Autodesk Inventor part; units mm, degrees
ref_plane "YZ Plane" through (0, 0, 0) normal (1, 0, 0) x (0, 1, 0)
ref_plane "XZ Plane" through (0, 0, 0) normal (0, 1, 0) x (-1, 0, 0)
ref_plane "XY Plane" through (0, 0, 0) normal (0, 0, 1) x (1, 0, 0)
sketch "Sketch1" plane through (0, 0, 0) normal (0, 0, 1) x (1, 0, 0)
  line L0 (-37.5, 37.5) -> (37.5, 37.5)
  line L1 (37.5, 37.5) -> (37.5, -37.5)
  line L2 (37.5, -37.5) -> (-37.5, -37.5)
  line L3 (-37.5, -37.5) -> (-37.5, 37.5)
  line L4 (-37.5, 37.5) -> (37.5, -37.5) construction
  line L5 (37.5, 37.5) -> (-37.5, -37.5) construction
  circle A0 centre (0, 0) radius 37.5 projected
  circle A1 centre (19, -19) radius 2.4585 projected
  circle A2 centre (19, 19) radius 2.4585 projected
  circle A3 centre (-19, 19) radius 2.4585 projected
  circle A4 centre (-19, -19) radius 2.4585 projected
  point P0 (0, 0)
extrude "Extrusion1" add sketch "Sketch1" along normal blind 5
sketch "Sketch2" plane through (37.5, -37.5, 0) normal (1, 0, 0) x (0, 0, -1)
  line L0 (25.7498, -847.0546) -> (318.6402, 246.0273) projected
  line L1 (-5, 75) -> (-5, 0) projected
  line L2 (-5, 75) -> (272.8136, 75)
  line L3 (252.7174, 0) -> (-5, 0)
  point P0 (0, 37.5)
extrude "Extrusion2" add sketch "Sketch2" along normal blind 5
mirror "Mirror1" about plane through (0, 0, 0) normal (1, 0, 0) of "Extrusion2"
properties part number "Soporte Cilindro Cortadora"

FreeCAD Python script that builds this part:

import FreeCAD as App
import Part
import Sketcher

V = App.Vector
Q = App.Units.Quantity

doc = App.newDocument("Part")
body = doc.addObject("PartDesign::Body", "Body")

# Sketch on XY plane
sketch1 = doc.addObject("Sketcher::SketchObject", "Sketch")
body.addObject(sketch1)
sketch1.AttachmentSupport = (doc.XY_Plane, [""])
sketch1.MapMode = "FlatFace"
sketch1.addGeometry([
    Part.LineSegment(V(-37.5, 37.5, 0), V(-37.5, -37.5, 0)),  # 0
    Part.LineSegment(V(-37.5, -37.5, 0), V(37.5, -37.5, 0)),  # 1
    Part.LineSegment(V(37.5, -37.5, 0), V(37.5, 37.5, 0)),  # 2
    Part.LineSegment(V(37.5, 37.5, 0), V(-37.5, 37.5, 0)),  # 3
    Part.Circle(V(19, 19, 0), V(0, 0, 1), 2.5),  # 4
    Part.Circle(V(-19, -19, 0), V(0, 0, 1), 2.5),  # 5
    Part.Circle(V(19, -19, 0), V(0, 0, 1), 2.5),  # 6
    Part.Circle(V(-19, 19, 0), V(0, 0, 1), 2.5),  # 7
], False)
sketch1.addConstraint([
    Sketcher.Constraint("Coincident", 0, 2, 1, 1),
    Sketcher.Constraint("Coincident", 1, 2, 2, 1),
    Sketcher.Constraint("Coincident", 2, 2, 3, 1),
    Sketcher.Constraint("Coincident", 3, 2, 0, 1),
    Sketcher.Constraint("Vertical", 0),
    Sketcher.Constraint("Horizontal", 1),
    Sketcher.Constraint("Vertical", 2),
    Sketcher.Constraint("Horizontal", 3),
    Sketcher.Constraint("Equal", 4, 5),
    Sketcher.Constraint("Equal", 5, 6),
    Sketcher.Constraint("Equal", 6, 7),
    Sketcher.Constraint("Symmetric", 4, 3, 5, 3, -1, 1),
    Sketcher.Constraint("Symmetric", 6, 3, 7, 3, -1, 1),
    Sketcher.Constraint("Symmetric", 0, 2, 2, 2, -1, 1),
    Sketcher.Constraint("Symmetric", 5, 3, 6, 3, -2),
    Sketcher.Constraint("Equal", 3, 0),
    Sketcher.Constraint("DistanceX", 1, 1, 1, 2, 75.0),
    Sketcher.Constraint("Diameter", 4, 4.917),
    Sketcher.Constraint("DistanceX", -1, 1, 4, 3, 19.0),
    Sketcher.Constraint("DistanceY", -1, 1, 4, 3, 19.0),
])
pad1 = doc.addObject("PartDesign::Pad", "Pad")
body.addObject(pad1)
pad1.Profile = sketch1
pad1.Length = 5

# Sketch on YZ plane
sketch2 = doc.addObject("Sketcher::SketchObject", "Sketch001")
body.addObject(sketch2)
sketch2.AttachmentSupport = (doc.YZ_Plane, [""])
sketch2.MapMode = "FlatFace"
sketch2.AttachmentOffset = App.Placement(V(0, 0, 37.5), App.Rotation())
sketch2.addGeometry([
    Part.LineSegment(V(-38, 5, 0), V(-38, -253, 0)),
    Part.LineSegment(V(-37, -253, 0), V(38, -273, 0)),
    Part.LineSegment(V(38, -273, 0), V(38, 5, 0)),
    Part.LineSegment(V(38, 5, 0), V(-38, 5, 0)),
], False)
sketch2.addConstraint([
    Sketcher.Constraint("Coincident", 0, 2, 1, 1),
    Sketcher.Constraint("Coincident", 1, 2, 2, 1),
    Sketcher.Constraint("Coincident", 2, 2, 3, 1),
    Sketcher.Constraint("Coincident", 3, 2, 0, 1),
    Sketcher.Constraint("Vertical", 0),
    Sketcher.Constraint("Vertical", 2),
    Sketcher.Constraint("Horizontal", 3),
    Sketcher.Constraint("DistanceX", 3, 2, 3, 1, 75.0),
    Sketcher.Constraint("Angle", 1, Q("-15 deg")),
    Sketcher.Constraint("DistanceY", -1, 1, 2, 2, 5.0),
    Sketcher.Constraint("DistanceX", 0, 2, -1, 1, 37.5),
    Sketcher.Constraint("DistanceY", 0, 2, 0, 1, 257.7174),
])
pad2 = doc.addObject("PartDesign::Pad", "Pad001")
body.addObject(pad2)
pad2.Profile = sketch2
pad2.Length = 5
doc.recompute()

mirrored = doc.addObject("PartDesign::Mirrored", "Mirrored")
body.addObject(mirrored)
mirrored.Originals = [pad2]
mirrored.MirrorPlane = (doc.YZ_Plane, [""])
body.Tip = mirrored

doc.recompute()
